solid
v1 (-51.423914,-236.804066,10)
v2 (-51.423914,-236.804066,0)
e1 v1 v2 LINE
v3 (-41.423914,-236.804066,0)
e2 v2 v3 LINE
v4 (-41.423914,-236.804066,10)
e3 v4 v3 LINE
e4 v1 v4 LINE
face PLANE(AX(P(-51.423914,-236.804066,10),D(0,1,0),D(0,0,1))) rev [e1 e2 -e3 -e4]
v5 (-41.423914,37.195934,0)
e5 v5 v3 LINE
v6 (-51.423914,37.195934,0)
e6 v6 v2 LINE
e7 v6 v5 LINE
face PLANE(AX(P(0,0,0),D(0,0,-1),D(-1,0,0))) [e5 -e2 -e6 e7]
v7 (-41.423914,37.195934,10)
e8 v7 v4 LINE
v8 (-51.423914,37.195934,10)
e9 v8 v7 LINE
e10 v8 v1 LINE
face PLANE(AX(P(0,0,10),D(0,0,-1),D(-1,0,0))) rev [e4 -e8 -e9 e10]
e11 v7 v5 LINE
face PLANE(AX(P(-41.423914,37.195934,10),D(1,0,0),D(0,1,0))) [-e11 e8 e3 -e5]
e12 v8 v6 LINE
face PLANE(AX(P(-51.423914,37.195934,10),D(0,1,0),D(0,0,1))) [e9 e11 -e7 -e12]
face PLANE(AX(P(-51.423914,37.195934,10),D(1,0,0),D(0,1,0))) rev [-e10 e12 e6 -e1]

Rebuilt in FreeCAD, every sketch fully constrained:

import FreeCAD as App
import Part
import Sketcher
from FreeCAD import Vector
Q = App.Units.Quantity


def add_polygon(sketch, points):
    """Adds a closed chain of lines whose ends are joined by coincident constraints."""
    first, n = sketch.GeometryCount, len(points)
    for a, b in zip(points, points[1:] + points[:1]):
        sketch.addGeometry(Part.LineSegment(App.Vector(*a, 0), App.Vector(*b, 0)), False)
    for i in range(n):
        sketch.addConstraint(Sketcher.Constraint("Coincident", first + i, 2, first + (i + 1) % n, 1))

doc = App.newDocument("Part")
body = doc.addObject("PartDesign::Body", "Body")

# Sketch on XY plane
sketch1 = body.newObject("Sketcher::SketchObject", "Sketch")
sketch1.AttachmentSupport = (doc.getObject("XY_Plane"), [""])
sketch1.MapMode = "FlatFace"
add_polygon(sketch1, [(-51.423914, 37.195934), (-51.423914, -236.804066), (-41.423914, -236.804066), (-41.423914, 37.195934)])  # lines 0-3
sketch1.addConstraint([
    Sketcher.Constraint("Vertical", 0),
    Sketcher.Constraint("Horizontal", 1),
    Sketcher.Constraint("Vertical", 2),
    Sketcher.Constraint("Horizontal", 3),
    Sketcher.Constraint("DistanceX", 1, 1, 1, 2, Q("10 mm")),
    Sketcher.Constraint("DistanceY", 0, 2, 0, 1, Q("274 mm")),
    Sketcher.Constraint("DistanceX", 0, 2, -1, 1, Q("51.423914 mm")),
    Sketcher.Constraint("DistanceY", 0, 2, -1, 1, Q("236.804066 mm")),
])
pad1 = body.newObject("PartDesign::Pad", "Pad")
pad1.Profile = sketch1
pad1.Length = 10

doc.recompute()
